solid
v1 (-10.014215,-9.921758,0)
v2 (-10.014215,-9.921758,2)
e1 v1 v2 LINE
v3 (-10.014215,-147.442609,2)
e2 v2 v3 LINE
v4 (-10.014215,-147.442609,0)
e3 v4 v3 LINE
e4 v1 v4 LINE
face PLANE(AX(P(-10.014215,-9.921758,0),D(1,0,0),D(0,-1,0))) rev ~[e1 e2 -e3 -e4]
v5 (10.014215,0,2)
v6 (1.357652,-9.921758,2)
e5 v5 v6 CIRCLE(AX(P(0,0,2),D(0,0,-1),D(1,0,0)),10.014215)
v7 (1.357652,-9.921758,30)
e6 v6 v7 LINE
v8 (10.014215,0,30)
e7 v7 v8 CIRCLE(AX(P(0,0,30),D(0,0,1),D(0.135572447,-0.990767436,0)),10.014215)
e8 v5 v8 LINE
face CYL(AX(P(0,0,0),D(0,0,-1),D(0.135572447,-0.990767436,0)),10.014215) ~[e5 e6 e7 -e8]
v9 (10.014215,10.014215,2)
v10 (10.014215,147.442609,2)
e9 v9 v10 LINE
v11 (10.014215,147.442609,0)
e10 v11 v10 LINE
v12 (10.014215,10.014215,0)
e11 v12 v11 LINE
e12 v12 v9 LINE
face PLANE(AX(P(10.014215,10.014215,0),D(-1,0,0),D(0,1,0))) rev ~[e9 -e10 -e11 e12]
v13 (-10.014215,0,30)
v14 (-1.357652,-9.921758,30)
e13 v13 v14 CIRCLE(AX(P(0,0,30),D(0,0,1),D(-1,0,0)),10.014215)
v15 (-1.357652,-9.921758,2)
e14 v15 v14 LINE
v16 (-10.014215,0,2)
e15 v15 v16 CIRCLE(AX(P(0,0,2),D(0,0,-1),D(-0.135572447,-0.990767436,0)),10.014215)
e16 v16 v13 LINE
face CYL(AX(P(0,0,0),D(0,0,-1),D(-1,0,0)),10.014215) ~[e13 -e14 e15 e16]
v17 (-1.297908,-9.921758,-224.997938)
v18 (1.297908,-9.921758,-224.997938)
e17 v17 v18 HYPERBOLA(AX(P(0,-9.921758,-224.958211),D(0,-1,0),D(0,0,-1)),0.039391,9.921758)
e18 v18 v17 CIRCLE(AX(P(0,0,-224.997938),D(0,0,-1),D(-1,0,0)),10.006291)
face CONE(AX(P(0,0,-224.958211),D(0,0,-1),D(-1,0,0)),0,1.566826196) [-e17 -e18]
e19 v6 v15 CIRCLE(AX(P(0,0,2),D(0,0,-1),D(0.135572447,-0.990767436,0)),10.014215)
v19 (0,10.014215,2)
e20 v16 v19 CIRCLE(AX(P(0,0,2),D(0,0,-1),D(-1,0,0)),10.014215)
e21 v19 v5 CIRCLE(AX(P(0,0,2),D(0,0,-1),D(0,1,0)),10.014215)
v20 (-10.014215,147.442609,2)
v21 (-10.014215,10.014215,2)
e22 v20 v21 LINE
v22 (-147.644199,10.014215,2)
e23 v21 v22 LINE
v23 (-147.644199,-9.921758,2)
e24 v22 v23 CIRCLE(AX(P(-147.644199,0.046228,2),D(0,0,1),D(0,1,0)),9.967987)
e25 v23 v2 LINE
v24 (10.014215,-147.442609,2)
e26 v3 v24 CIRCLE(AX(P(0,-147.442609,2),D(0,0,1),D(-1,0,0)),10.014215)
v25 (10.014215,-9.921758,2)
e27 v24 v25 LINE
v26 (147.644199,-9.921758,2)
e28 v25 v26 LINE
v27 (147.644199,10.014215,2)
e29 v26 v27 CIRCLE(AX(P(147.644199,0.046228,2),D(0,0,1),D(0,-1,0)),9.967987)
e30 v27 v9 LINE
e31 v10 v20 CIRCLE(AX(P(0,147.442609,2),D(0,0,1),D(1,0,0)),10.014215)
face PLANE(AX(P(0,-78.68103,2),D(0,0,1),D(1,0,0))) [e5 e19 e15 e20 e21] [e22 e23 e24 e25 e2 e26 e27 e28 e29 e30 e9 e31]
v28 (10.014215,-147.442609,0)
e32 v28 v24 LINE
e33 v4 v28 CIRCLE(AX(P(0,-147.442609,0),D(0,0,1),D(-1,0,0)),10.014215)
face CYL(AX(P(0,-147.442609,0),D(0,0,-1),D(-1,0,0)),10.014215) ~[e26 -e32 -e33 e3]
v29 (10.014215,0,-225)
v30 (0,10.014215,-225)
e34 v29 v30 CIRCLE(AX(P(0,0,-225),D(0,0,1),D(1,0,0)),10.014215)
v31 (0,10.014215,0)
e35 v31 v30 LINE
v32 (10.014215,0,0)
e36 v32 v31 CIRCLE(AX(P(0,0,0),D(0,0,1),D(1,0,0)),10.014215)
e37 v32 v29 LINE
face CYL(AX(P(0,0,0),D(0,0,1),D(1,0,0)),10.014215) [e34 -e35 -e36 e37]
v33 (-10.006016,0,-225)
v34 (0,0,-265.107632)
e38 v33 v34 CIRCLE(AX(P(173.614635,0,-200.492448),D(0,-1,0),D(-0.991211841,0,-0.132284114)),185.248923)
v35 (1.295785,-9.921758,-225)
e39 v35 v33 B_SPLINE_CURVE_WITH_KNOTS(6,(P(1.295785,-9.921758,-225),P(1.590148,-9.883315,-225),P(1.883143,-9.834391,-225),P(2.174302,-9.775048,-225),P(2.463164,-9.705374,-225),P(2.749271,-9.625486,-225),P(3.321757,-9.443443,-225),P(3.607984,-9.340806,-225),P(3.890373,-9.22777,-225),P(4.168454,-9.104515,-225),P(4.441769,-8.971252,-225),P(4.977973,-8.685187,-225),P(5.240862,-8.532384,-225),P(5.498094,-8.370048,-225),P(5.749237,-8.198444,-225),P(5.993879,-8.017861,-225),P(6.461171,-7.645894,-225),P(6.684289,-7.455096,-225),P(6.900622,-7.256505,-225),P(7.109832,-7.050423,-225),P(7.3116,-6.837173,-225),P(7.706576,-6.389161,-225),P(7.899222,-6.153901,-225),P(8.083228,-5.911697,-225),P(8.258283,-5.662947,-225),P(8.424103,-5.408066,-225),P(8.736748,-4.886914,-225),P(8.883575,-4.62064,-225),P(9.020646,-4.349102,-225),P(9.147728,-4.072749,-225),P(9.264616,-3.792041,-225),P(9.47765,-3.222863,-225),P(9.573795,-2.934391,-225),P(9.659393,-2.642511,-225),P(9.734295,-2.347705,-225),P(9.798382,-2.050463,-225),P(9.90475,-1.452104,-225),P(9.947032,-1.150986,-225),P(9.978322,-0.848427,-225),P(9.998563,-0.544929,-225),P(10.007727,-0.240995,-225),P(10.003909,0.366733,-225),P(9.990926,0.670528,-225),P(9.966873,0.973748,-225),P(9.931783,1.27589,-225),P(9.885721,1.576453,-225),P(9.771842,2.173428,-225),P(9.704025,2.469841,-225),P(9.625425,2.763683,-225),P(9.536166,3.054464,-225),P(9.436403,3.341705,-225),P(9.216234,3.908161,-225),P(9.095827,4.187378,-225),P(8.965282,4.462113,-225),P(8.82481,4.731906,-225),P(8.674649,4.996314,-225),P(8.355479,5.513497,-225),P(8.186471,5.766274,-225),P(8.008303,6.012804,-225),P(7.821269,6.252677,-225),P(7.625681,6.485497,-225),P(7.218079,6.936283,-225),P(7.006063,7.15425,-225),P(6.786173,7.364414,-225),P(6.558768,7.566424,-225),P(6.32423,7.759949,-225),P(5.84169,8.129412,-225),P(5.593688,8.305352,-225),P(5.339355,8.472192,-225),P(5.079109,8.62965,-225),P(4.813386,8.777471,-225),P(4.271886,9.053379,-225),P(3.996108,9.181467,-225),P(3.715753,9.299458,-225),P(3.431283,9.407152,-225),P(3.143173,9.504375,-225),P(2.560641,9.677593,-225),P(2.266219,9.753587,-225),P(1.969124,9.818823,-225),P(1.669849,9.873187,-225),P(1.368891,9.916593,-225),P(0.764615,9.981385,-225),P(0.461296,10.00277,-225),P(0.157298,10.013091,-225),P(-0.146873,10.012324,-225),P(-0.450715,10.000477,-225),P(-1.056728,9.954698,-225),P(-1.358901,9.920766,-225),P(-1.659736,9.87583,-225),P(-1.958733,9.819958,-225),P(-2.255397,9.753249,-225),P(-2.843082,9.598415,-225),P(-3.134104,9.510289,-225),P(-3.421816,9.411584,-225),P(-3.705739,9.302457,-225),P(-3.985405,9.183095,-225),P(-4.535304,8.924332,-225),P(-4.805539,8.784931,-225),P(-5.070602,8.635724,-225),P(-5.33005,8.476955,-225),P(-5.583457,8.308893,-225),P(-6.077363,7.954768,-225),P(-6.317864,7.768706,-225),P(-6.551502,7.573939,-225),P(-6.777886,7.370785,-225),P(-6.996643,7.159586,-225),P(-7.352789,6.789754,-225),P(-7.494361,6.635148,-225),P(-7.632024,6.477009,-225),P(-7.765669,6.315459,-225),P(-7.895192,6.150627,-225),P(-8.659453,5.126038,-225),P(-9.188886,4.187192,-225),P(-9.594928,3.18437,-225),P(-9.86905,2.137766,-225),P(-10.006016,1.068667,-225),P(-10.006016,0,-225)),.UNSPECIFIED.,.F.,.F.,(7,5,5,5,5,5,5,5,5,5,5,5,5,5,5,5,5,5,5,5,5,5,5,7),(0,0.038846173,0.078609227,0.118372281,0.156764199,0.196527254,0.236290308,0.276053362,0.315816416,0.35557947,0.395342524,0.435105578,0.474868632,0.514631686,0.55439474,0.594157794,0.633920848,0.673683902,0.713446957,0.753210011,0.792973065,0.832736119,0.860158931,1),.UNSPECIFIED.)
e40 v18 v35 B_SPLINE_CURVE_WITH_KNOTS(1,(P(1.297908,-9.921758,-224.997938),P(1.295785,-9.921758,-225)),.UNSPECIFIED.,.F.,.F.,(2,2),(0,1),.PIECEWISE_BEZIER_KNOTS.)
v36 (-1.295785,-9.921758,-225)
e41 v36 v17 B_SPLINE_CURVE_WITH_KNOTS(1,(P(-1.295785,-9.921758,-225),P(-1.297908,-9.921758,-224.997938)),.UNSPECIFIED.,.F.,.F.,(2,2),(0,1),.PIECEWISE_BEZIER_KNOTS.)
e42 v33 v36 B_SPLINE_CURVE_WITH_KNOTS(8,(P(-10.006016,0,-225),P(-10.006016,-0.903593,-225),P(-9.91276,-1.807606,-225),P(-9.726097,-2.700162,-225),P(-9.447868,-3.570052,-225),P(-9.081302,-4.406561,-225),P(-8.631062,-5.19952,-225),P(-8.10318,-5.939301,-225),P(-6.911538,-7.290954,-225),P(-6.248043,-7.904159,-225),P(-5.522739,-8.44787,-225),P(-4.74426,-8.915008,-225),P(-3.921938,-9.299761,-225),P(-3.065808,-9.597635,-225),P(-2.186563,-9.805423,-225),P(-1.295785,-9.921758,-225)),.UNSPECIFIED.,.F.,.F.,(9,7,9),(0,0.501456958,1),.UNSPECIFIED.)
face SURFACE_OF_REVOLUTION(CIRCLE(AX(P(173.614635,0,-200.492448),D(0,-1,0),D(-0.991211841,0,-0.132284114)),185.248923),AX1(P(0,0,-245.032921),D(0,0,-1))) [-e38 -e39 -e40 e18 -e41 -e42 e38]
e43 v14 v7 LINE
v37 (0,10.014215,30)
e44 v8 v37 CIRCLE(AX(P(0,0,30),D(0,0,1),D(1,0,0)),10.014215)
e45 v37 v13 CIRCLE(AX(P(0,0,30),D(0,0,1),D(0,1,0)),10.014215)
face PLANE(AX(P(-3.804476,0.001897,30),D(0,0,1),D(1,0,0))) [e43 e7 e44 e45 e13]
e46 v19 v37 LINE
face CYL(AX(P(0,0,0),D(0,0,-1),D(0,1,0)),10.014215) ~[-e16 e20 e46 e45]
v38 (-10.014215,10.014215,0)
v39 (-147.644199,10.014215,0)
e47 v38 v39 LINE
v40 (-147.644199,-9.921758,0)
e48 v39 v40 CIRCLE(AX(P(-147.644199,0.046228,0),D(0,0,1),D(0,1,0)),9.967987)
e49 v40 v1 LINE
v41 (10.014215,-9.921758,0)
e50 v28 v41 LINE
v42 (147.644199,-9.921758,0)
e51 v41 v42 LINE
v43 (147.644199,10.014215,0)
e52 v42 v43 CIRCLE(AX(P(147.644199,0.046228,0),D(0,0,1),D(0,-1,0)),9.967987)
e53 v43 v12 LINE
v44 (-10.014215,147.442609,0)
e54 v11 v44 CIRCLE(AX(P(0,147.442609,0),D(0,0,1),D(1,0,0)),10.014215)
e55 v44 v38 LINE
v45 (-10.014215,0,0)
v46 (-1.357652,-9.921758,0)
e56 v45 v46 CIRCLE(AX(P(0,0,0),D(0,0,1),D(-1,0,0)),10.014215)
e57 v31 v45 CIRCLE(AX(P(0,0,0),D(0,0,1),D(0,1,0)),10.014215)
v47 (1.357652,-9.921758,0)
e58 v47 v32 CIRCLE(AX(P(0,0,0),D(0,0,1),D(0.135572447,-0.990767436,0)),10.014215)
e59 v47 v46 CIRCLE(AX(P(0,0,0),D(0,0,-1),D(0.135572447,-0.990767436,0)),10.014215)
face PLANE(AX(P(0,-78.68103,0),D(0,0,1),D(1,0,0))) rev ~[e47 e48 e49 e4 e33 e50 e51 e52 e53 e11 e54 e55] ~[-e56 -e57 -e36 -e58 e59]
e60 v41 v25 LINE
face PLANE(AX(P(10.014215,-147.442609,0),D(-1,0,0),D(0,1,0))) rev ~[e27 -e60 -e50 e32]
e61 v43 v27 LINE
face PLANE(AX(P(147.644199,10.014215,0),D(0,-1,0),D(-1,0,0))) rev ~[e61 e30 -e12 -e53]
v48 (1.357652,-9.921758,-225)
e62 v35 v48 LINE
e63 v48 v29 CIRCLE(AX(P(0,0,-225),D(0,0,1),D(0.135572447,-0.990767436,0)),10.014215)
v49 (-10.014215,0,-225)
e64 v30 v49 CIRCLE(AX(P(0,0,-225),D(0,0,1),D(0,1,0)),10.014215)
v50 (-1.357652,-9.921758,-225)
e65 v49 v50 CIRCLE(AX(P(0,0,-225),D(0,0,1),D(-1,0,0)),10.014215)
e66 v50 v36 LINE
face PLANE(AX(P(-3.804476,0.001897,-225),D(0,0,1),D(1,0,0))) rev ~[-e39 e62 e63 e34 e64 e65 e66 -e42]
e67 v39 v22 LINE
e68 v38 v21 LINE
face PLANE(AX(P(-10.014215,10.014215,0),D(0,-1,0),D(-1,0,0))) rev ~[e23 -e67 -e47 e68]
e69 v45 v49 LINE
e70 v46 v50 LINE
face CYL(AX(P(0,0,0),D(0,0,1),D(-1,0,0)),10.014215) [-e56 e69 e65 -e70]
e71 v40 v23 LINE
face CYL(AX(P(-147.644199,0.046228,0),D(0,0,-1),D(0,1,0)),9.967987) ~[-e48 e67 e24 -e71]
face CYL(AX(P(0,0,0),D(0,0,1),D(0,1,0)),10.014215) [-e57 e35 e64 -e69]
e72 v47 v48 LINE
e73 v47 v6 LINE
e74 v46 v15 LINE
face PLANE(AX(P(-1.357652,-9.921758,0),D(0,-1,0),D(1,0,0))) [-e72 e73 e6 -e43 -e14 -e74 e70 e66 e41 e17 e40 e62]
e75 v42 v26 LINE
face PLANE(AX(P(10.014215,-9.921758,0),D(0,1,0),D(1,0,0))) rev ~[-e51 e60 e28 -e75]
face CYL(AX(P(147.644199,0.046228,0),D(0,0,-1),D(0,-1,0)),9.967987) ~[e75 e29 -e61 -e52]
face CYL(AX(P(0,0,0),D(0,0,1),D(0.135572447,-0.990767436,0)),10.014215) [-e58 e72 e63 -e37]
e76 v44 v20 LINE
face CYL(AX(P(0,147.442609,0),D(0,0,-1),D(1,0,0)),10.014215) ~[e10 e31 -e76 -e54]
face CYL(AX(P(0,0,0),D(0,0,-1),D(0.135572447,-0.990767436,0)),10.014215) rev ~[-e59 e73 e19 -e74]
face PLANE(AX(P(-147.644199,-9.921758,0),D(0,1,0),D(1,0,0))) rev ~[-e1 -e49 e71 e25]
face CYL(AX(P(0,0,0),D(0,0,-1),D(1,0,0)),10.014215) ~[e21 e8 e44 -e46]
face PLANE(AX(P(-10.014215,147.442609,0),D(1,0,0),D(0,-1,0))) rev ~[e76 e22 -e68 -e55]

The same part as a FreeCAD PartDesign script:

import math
import FreeCAD as App
import Part
import Sketcher
from FreeCAD import Vector
Q = App.Units.Quantity

doc = App.newDocument("Part")
params = doc.addObject("Spreadsheet::Sheet", "Params")
for row, (alias, value) in enumerate([
    ("pad1_length", "30 mm"),
    ("pad1_length2", "225 mm"),
    ("pad2_length", "2 mm"),
    ("revolution_angle", "360 deg"),
], start=1):
    params.set(f"A{row}", alias)
    params.set(f"B{row}", "=" + value)
    params.setAlias(f"B{row}", alias)

body = doc.addObject("PartDesign::Body", "Body")

# Sketch on XY plane
sketch1 = doc.addObject("Sketcher::SketchObject", "Sketch")
body.addObject(sketch1)
sketch1.AttachmentSupport = (doc.XY_Plane, [""])
sketch1.MapMode = "FlatFace"
sketch1.addGeometry([
    Part.ArcOfCircle(Part.Circle(Vector(0, 0, 0), Vector(0, 0, 1), 10), math.radians(90), math.radians(180)),  # 0
    Part.ArcOfCircle(Part.Circle(Vector(0, 0, 0), Vector(0, 0, 1), 10), math.radians(180), math.radians(262)),  # 1
    Part.LineSegment(Vector(-1.4, -9.9, 0), Vector(1.4, -9.9, 0)),  # 2
    Part.ArcOfCircle(Part.Circle(Vector(0, 0, 0), Vector(0, 0, 1), 10), math.radians(-82), math.radians(0)),  # 3
    Part.ArcOfCircle(Part.Circle(Vector(0, 0, 0), Vector(0, 0, 1), 10), math.radians(0), math.radians(90)),  # 4
], False)
sketch1.addConstraint([
    Sketcher.Constraint("Tangent", 0, 2, 1, 1),
    Sketcher.Constraint("Coincident", 1, 2, 2, 1),
    Sketcher.Constraint("Coincident", 2, 2, 3, 1),
    Sketcher.Constraint("Tangent", 3, 2, 4, 1),
    Sketcher.Constraint("Tangent", 4, 2, 0, 1),
    Sketcher.Constraint("Horizontal", 2),
    Sketcher.Constraint("Coincident", 0, 3, -1, 1),
    Sketcher.Constraint("Coincident", 3, 3, -1, 1),
    Sketcher.Constraint("Equal", 0, 1),
    Sketcher.Constraint("PointOnObject", 0, 2, -1),
    Sketcher.Constraint("PointOnObject", 3, 2, -1),
    Sketcher.Constraint("PointOnObject", 4, 2, -2),
    Sketcher.Constraint("Radius", 0, Q("10.014215 mm")),
    Sketcher.Constraint("DistanceX", 2, 1, 2, 2, Q("2.715303 mm")),
])
pad1 = doc.addObject("PartDesign::Pad", "Pad")
body.addObject(pad1)
pad1.Profile = sketch1
pad1.Type = "TwoLengths"
pad1.setExpression("Length", "Params.pad1_length")
pad1.setExpression("Length2", "Params.pad1_length2")

# Sketch on XY plane
sketch2 = doc.addObject("Sketcher::SketchObject", "Sketch001")
body.addObject(sketch2)
sketch2.AttachmentSupport = (doc.XY_Plane, [""])
sketch2.MapMode = "FlatFace"
sketch2.addGeometry([
    Part.LineSegment(Vector(10, -147.4, 0), Vector(10, -9.9, 0)),  # 0
    Part.LineSegment(Vector(10, -9.9, 0), Vector(147.6, -9.9, 0)),  # 1
    Part.ArcOfCircle(Part.Circle(Vector(147.6, 0, 0), Vector(0, 0, 1), 10), math.radians(-90), math.radians(90)),  # 2
    Part.LineSegment(Vector(147.6, 10, 0), Vector(10, 10, 0)),  # 3
    Part.LineSegment(Vector(10, 10, 0), Vector(10, 147.4, 0)),  # 4
    Part.ArcOfCircle(Part.Circle(Vector(0, 147.4, 0), Vector(0, 0, 1), 10), math.radians(0), math.radians(180)),  # 5
    Part.LineSegment(Vector(-10, 147.4, 0), Vector(-10, 10, 0)),  # 6
    Part.LineSegment(Vector(-10, 10, 0), Vector(-147.6, 10, 0)),  # 7
    Part.ArcOfCircle(Part.Circle(Vector(-147.6, 0, 0), Vector(0, 0, 1), 10), math.radians(90), math.radians(270)),  # 8
    Part.LineSegment(Vector(-147.6, -9.9, 0), Vector(-10, -9.9, 0)),  # 9
    Part.LineSegment(Vector(-10, -9.9, 0), Vector(-10, -147.4, 0)),  # 10
    Part.ArcOfCircle(Part.Circle(Vector(0, -147.4, 0), Vector(0, 0, 1), 10), math.radians(180), math.radians(360)),  # 11
    Part.ArcOfCircle(Part.Circle(Vector(0, 0, 0), Vector(0, 0, 1), 10), math.radians(0), math.radians(90)),  # 12
    Part.ArcOfCircle(Part.Circle(Vector(0, 0, 0), Vector(0, 0, 1), 10), math.radians(-82), math.radians(0)),  # 13
    Part.ArcOfCircle(Part.Circle(Vector(0, 0, 0), Vector(0, 0, 1), 10), math.radians(-97.79), math.radians(-82.21)),  # 14
    Part.ArcOfCircle(Part.Circle(Vector(0, 0, 0), Vector(0, 0, 1), 10), math.radians(180), math.radians(262)),  # 15
    Part.ArcOfCircle(Part.Circle(Vector(0, 0, 0), Vector(0, 0, 1), 10), math.radians(90), math.radians(180)),  # 16
], False)
sketch2.addConstraint([
    Sketcher.Constraint("Coincident", 0, 2, 1, 1),
    Sketcher.Constraint("Tangent", 1, 2, 2, 1),
    Sketcher.Constraint("Tangent", 2, 2, 3, 1),
    Sketcher.Constraint("Coincident", 3, 2, 4, 1),
    Sketcher.Constraint("Tangent", 4, 2, 5, 1),
    Sketcher.Constraint("Tangent", 5, 2, 6, 1),
    Sketcher.Constraint("Coincident", 6, 2, 7, 1),
    Sketcher.Constraint("Tangent", 7, 2, 8, 1),
    Sketcher.Constraint("Tangent", 8, 2, 9, 1),
    Sketcher.Constraint("Coincident", 9, 2, 10, 1),
    Sketcher.Constraint("Tangent", 10, 2, 11, 1),
    Sketcher.Constraint("Tangent", 11, 2, 0, 1),
    Sketcher.Constraint("Tangent", 12, 1, 13, 2),
    Sketcher.Constraint("Tangent", 13, 1, 14, 2),
    Sketcher.Constraint("Tangent", 14, 1, 15, 2),
    Sketcher.Constraint("Tangent", 15, 1, 16, 2),
    Sketcher.Constraint("Tangent", 16, 1, 12, 2),
    Sketcher.Constraint("Vertical", 0),
    Sketcher.Constraint("Horizontal", 1),
    Sketcher.Constraint("Horizontal", 3),
    Sketcher.Constraint("Vertical", 4),
    Sketcher.Constraint("Vertical", 6),
    Sketcher.Constraint("Horizontal", 7),
    Sketcher.Constraint("Horizontal", 9),
    Sketcher.Constraint("Vertical", 10),
    Sketcher.Constraint("Coincident", 12, 3, -1, 1),
    Sketcher.Constraint("Coincident", 14, 3, -1, 1),
    Sketcher.Constraint("Equal", 2, 8),
    Sketcher.Constraint("Equal", 5, 11),
    Sketcher.Constraint("Equal", 11, 12),
    Sketcher.Constraint("Symmetric", 5, 3, 11, 3, -1, 1),
    Sketcher.Constraint("Symmetric", 2, 3, 8, 3, -2),
    Sketcher.Constraint("PointOnObject", 5, 3, -2),
    Sketcher.Constraint("PointOnObject", 12, 1, -1),
    Sketcher.Constraint("PointOnObject", 15, 1, -1),
    Sketcher.Constraint("PointOnObject", 16, 1, -2),
    Sketcher.Constraint("Horizontal", 9, 2, 13, 1),
    Sketcher.Constraint("Horizontal", 13, 1, 14, 1),
    Sketcher.Constraint("Horizontal", 7, 2, 16, 1),
    Sketcher.Constraint("Radius", 2, Q("9.967987 mm")),
    Sketcher.Constraint("Radius", 5, Q("10.014215 mm")),
    Sketcher.Constraint("DistanceY", 0, 1, 0, 2, Q("137.520851 mm")),
    Sketcher.Constraint("DistanceX", -1, 1, 2, 3, Q("147.644199 mm")),
])
pad2 = doc.addObject("PartDesign::Pad", "Pad001")
body.addObject(pad2)
pad2.Profile = sketch2
pad2.setExpression("Length", "Params.pad2_length")

# Sketch on XZ plane
sketch3 = doc.addObject("Sketcher::SketchObject", "Sketch002")
body.addObject(sketch3)
sketch3.AttachmentSupport = (doc.XZ_Plane, [""])
sketch3.MapMode = "FlatFace"
sketch3.addGeometry([
    Part.LineSegment(Vector(0, -265, 0), Vector(0, -225, 0)),
    Part.LineSegment(Vector(0, -225, 0), Vector(-10, -225, 0)),
    Part.ArcOfCircle(Part.Circle(Vector(174, -200, 0), Vector(0, 0, 1), 185), math.radians(-172.4), math.radians(-159.59)),
], False)
sketch3.addConstraint([
    Sketcher.Constraint("Coincident", 0, 2, 1, 1),
    Sketcher.Constraint("Coincident", 1, 2, 2, 1),
    Sketcher.Constraint("Coincident", 2, 2, 0, 1),
    Sketcher.Constraint("Vertical", 0),
    Sketcher.Constraint("PointOnObject", 0, 2, -2),
    Sketcher.Constraint("Radius", 2, Q("185.248923 mm")),
    Sketcher.Constraint("DistanceY", 0, 1, 0, 2, Q("40.149421 mm")),
    Sketcher.Constraint("Distance", 1, Q("10.00637 mm")),
    Sketcher.Constraint("DistanceY", 2, 3, -1, 1, Q("200.492448 mm")),
    Sketcher.Constraint("DistanceY", 0, 2, -1, 1, Q("224.958211 mm")),
])
revolution = doc.addObject("PartDesign::Revolution", "Revolution")
body.addObject(revolution)
revolution.Profile = sketch3
revolution.ReferenceAxis = (sketch3, ["V_Axis"])
revolution.setExpression("Angle", "Params.revolution_angle")

doc.recompute()
